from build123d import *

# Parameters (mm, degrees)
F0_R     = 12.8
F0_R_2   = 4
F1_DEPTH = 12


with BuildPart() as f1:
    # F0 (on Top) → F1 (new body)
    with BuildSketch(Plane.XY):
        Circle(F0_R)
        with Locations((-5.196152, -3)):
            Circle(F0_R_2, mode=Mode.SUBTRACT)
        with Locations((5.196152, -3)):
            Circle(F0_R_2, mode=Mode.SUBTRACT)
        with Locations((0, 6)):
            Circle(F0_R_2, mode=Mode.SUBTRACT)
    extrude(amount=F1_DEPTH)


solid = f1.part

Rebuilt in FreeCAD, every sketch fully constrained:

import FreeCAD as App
import Part
import Sketcher
Q = App.Units.Quantity

doc = App.newDocument("Part")
body = doc.addObject("PartDesign::Body", "Body")

# Sketch on XY plane
sketch1 = body.newObject("Sketcher::SketchObject", "Sketch")
sketch1.AttachmentSupport = (doc.getObject("XY_Plane"), [""])
sketch1.MapMode = "FlatFace"
sketch1.addGeometry(Part.Circle(App.Vector(0, 0, 0), App.Vector(0, 0, 1), 12.8), False)
sketch1.addGeometry(Part.Circle(App.Vector(-5.2, -3, 0), App.Vector(0, 0, 1), 4), False)
sketch1.addGeometry(Part.Circle(App.Vector(5.2, -3, 0), App.Vector(0, 0, 1), 4), False)
sketch1.addGeometry(Part.Circle(App.Vector(0, 6, 0), App.Vector(0, 0, 1), 4), False)
sketch1.addConstraint(Sketcher.Constraint("Coincident", 0, 3, -1, 1))
sketch1.addConstraint(Sketcher.Constraint("Equal", 1, 2))
sketch1.addConstraint(Sketcher.Constraint("Equal", 2, 3))
sketch1.addConstraint(Sketcher.Constraint("Symmetric", 1, 3, 2, 3, -2))
sketch1.addConstraint(Sketcher.Constraint("PointOnObject", 3, 3, -2))
sketch1.addConstraint(Sketcher.Constraint("Diameter", 1, Q("8 mm")))
sketch1.addConstraint(Sketcher.Constraint("Diameter", 0, Q("25.6 mm")))
sketch1.addConstraint(Sketcher.Constraint("DistanceY", 1, 3, -1, 1, Q("3 mm")))
sketch1.addConstraint(Sketcher.Constraint("DistanceY", -1, 1, 3, 3, Q("6 mm")))
sketch1.addConstraint(Sketcher.Constraint("DistanceX", 1, 3, -1, 1, Q("5.196152 mm")))
pad1 = body.newObject("PartDesign::Pad", "Pad")
pad1.Profile = sketch1
pad1.Length = 12

doc.recompute()
